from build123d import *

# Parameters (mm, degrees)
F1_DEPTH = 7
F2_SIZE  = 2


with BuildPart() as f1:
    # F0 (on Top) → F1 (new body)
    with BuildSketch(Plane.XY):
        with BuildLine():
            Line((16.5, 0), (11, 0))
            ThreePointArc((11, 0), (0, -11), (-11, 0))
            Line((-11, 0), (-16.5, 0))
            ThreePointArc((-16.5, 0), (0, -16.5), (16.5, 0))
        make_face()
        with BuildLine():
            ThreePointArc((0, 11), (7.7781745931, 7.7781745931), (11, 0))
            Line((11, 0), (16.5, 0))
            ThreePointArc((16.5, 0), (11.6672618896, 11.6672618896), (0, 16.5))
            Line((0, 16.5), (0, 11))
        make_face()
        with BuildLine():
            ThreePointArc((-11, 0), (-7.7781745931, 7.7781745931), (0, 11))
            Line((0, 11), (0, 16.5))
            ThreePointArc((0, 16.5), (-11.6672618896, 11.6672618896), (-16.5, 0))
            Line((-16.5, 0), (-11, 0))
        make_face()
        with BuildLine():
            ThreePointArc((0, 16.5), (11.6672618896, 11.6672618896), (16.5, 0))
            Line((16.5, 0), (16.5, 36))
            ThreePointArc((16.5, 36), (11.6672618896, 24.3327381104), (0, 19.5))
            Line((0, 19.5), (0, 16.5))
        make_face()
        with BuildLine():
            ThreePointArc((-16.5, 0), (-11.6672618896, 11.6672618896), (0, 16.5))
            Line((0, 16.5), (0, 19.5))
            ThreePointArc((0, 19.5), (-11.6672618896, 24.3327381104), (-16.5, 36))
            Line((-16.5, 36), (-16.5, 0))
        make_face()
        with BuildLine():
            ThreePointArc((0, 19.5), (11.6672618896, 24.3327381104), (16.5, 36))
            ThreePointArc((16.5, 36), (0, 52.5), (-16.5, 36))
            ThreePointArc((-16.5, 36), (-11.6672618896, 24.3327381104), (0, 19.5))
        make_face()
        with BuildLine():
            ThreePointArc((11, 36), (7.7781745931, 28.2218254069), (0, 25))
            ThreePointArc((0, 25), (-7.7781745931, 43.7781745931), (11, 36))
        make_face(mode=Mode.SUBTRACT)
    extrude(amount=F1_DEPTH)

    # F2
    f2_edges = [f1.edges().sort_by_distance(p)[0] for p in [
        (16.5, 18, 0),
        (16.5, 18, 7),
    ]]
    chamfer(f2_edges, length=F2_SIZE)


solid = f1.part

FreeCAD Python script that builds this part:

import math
import FreeCAD as App
import Part
import Sketcher
from FreeCAD import Vector


def edges_at(feature, points):
    """Names of the edges that pass closest to the given points."""
    edges = feature.Shape.Edges
    near = lambda p: min(range(len(edges)), key=lambda i: edges[i].distToShape(Part.Vertex(*p))[0])
    return sorted({f"Edge{near(p) + 1}" for p in points})

doc = App.newDocument("Part")
body = doc.addObject("PartDesign::Body", "Body")

sketch1 = body.newObject("Sketcher::SketchObject", "Sketch")
sketch1.AttachmentSupport = (doc.getObject("XY_Plane"), [""])
sketch1.MapMode = "FlatFace"
sketch1.addGeometry([
    Part.ArcOfCircle(Part.Circle(Vector(0, 0, 0), Vector(0, 0, 1), 16), math.radians(180), math.radians(360)),
    Part.LineSegment(Vector(16, 0, 0), Vector(16, 36, 0)),
    Part.ArcOfCircle(Part.Circle(Vector(0, 36, 0), Vector(0, 0, 1), 16), math.radians(0), math.radians(180)),
    Part.LineSegment(Vector(-16, 36, 0), Vector(-16, 0, 0)),
    Part.ArcOfCircle(Part.Circle(Vector(0, 0, 0), Vector(0, 0, 1), 11), math.radians(180), math.radians(360)),
    Part.ArcOfCircle(Part.Circle(Vector(0, 0, 0), Vector(0, 0, 1), 11), math.radians(90), math.radians(180)),
    Part.ArcOfCircle(Part.Circle(Vector(0, 0, 0), Vector(0, 0, 1), 11), math.radians(0), math.radians(90)),
    Part.ArcOfCircle(Part.Circle(Vector(0, 36, 0), Vector(0, 0, 1), 11), math.radians(0), math.radians(270)),
    Part.ArcOfCircle(Part.Circle(Vector(0, 36, 0), Vector(0, 0, 1), 11), math.radians(-90), math.radians(0)),
], False)
sketch1.addConstraint([
    Sketcher.Constraint("Tangent", 0, 2, 1, 1),
    Sketcher.Constraint("Tangent", 1, 2, 2, 1),
    Sketcher.Constraint("Tangent", 2, 2, 3, 1),
    Sketcher.Constraint("Tangent", 3, 2, 0, 1),
    Sketcher.Constraint("Tangent", 4, 1, 5, 2),
    Sketcher.Constraint("Tangent", 5, 1, 6, 2),
    Sketcher.Constraint("Tangent", 6, 1, 4, 2),
    Sketcher.Constraint("Tangent", 7, 1, 8, 2),
    Sketcher.Constraint("Coincident", 8, 1, 7, 2),
    Sketcher.Constraint("Vertical", 1),
    Sketcher.Constraint("Vertical", 3),
    Sketcher.Constraint("Coincident", 0, 3, -1, 1),
    Sketcher.Constraint("Coincident", 4, 3, -1, 1),
    Sketcher.Constraint("Coincident", 7, 3, 2, 3),
    Sketcher.Constraint("Equal", 6, 7),
    Sketcher.Constraint("PointOnObject", 4, 1, -1),
    Sketcher.Constraint("PointOnObject", 5, 1, -2),
    Sketcher.Constraint("PointOnObject", 6, 1, -1),
    Sketcher.Constraint("PointOnObject", 8, 1, -2),
    Sketcher.Constraint("Horizontal", 2, 2, 7, 1),
    Sketcher.Constraint("Radius", 4, 11.0),
    Sketcher.Constraint("Radius", 0, 16.5),
    Sketcher.Constraint("DistanceY", 1, 1, 1, 2, 36.0),
])
pad1 = body.newObject("PartDesign::Pad", "Pad")
pad1.Profile = sketch1
pad1.Length = 7
doc.recompute()

chamfer = body.newObject("PartDesign::Chamfer", "Chamfer")
chamfer.Base = (pad1, edges_at(pad1, [(16.5, 18, 0), (16.5, 18, 7)]))
chamfer.Size = 2

doc.recompute()
